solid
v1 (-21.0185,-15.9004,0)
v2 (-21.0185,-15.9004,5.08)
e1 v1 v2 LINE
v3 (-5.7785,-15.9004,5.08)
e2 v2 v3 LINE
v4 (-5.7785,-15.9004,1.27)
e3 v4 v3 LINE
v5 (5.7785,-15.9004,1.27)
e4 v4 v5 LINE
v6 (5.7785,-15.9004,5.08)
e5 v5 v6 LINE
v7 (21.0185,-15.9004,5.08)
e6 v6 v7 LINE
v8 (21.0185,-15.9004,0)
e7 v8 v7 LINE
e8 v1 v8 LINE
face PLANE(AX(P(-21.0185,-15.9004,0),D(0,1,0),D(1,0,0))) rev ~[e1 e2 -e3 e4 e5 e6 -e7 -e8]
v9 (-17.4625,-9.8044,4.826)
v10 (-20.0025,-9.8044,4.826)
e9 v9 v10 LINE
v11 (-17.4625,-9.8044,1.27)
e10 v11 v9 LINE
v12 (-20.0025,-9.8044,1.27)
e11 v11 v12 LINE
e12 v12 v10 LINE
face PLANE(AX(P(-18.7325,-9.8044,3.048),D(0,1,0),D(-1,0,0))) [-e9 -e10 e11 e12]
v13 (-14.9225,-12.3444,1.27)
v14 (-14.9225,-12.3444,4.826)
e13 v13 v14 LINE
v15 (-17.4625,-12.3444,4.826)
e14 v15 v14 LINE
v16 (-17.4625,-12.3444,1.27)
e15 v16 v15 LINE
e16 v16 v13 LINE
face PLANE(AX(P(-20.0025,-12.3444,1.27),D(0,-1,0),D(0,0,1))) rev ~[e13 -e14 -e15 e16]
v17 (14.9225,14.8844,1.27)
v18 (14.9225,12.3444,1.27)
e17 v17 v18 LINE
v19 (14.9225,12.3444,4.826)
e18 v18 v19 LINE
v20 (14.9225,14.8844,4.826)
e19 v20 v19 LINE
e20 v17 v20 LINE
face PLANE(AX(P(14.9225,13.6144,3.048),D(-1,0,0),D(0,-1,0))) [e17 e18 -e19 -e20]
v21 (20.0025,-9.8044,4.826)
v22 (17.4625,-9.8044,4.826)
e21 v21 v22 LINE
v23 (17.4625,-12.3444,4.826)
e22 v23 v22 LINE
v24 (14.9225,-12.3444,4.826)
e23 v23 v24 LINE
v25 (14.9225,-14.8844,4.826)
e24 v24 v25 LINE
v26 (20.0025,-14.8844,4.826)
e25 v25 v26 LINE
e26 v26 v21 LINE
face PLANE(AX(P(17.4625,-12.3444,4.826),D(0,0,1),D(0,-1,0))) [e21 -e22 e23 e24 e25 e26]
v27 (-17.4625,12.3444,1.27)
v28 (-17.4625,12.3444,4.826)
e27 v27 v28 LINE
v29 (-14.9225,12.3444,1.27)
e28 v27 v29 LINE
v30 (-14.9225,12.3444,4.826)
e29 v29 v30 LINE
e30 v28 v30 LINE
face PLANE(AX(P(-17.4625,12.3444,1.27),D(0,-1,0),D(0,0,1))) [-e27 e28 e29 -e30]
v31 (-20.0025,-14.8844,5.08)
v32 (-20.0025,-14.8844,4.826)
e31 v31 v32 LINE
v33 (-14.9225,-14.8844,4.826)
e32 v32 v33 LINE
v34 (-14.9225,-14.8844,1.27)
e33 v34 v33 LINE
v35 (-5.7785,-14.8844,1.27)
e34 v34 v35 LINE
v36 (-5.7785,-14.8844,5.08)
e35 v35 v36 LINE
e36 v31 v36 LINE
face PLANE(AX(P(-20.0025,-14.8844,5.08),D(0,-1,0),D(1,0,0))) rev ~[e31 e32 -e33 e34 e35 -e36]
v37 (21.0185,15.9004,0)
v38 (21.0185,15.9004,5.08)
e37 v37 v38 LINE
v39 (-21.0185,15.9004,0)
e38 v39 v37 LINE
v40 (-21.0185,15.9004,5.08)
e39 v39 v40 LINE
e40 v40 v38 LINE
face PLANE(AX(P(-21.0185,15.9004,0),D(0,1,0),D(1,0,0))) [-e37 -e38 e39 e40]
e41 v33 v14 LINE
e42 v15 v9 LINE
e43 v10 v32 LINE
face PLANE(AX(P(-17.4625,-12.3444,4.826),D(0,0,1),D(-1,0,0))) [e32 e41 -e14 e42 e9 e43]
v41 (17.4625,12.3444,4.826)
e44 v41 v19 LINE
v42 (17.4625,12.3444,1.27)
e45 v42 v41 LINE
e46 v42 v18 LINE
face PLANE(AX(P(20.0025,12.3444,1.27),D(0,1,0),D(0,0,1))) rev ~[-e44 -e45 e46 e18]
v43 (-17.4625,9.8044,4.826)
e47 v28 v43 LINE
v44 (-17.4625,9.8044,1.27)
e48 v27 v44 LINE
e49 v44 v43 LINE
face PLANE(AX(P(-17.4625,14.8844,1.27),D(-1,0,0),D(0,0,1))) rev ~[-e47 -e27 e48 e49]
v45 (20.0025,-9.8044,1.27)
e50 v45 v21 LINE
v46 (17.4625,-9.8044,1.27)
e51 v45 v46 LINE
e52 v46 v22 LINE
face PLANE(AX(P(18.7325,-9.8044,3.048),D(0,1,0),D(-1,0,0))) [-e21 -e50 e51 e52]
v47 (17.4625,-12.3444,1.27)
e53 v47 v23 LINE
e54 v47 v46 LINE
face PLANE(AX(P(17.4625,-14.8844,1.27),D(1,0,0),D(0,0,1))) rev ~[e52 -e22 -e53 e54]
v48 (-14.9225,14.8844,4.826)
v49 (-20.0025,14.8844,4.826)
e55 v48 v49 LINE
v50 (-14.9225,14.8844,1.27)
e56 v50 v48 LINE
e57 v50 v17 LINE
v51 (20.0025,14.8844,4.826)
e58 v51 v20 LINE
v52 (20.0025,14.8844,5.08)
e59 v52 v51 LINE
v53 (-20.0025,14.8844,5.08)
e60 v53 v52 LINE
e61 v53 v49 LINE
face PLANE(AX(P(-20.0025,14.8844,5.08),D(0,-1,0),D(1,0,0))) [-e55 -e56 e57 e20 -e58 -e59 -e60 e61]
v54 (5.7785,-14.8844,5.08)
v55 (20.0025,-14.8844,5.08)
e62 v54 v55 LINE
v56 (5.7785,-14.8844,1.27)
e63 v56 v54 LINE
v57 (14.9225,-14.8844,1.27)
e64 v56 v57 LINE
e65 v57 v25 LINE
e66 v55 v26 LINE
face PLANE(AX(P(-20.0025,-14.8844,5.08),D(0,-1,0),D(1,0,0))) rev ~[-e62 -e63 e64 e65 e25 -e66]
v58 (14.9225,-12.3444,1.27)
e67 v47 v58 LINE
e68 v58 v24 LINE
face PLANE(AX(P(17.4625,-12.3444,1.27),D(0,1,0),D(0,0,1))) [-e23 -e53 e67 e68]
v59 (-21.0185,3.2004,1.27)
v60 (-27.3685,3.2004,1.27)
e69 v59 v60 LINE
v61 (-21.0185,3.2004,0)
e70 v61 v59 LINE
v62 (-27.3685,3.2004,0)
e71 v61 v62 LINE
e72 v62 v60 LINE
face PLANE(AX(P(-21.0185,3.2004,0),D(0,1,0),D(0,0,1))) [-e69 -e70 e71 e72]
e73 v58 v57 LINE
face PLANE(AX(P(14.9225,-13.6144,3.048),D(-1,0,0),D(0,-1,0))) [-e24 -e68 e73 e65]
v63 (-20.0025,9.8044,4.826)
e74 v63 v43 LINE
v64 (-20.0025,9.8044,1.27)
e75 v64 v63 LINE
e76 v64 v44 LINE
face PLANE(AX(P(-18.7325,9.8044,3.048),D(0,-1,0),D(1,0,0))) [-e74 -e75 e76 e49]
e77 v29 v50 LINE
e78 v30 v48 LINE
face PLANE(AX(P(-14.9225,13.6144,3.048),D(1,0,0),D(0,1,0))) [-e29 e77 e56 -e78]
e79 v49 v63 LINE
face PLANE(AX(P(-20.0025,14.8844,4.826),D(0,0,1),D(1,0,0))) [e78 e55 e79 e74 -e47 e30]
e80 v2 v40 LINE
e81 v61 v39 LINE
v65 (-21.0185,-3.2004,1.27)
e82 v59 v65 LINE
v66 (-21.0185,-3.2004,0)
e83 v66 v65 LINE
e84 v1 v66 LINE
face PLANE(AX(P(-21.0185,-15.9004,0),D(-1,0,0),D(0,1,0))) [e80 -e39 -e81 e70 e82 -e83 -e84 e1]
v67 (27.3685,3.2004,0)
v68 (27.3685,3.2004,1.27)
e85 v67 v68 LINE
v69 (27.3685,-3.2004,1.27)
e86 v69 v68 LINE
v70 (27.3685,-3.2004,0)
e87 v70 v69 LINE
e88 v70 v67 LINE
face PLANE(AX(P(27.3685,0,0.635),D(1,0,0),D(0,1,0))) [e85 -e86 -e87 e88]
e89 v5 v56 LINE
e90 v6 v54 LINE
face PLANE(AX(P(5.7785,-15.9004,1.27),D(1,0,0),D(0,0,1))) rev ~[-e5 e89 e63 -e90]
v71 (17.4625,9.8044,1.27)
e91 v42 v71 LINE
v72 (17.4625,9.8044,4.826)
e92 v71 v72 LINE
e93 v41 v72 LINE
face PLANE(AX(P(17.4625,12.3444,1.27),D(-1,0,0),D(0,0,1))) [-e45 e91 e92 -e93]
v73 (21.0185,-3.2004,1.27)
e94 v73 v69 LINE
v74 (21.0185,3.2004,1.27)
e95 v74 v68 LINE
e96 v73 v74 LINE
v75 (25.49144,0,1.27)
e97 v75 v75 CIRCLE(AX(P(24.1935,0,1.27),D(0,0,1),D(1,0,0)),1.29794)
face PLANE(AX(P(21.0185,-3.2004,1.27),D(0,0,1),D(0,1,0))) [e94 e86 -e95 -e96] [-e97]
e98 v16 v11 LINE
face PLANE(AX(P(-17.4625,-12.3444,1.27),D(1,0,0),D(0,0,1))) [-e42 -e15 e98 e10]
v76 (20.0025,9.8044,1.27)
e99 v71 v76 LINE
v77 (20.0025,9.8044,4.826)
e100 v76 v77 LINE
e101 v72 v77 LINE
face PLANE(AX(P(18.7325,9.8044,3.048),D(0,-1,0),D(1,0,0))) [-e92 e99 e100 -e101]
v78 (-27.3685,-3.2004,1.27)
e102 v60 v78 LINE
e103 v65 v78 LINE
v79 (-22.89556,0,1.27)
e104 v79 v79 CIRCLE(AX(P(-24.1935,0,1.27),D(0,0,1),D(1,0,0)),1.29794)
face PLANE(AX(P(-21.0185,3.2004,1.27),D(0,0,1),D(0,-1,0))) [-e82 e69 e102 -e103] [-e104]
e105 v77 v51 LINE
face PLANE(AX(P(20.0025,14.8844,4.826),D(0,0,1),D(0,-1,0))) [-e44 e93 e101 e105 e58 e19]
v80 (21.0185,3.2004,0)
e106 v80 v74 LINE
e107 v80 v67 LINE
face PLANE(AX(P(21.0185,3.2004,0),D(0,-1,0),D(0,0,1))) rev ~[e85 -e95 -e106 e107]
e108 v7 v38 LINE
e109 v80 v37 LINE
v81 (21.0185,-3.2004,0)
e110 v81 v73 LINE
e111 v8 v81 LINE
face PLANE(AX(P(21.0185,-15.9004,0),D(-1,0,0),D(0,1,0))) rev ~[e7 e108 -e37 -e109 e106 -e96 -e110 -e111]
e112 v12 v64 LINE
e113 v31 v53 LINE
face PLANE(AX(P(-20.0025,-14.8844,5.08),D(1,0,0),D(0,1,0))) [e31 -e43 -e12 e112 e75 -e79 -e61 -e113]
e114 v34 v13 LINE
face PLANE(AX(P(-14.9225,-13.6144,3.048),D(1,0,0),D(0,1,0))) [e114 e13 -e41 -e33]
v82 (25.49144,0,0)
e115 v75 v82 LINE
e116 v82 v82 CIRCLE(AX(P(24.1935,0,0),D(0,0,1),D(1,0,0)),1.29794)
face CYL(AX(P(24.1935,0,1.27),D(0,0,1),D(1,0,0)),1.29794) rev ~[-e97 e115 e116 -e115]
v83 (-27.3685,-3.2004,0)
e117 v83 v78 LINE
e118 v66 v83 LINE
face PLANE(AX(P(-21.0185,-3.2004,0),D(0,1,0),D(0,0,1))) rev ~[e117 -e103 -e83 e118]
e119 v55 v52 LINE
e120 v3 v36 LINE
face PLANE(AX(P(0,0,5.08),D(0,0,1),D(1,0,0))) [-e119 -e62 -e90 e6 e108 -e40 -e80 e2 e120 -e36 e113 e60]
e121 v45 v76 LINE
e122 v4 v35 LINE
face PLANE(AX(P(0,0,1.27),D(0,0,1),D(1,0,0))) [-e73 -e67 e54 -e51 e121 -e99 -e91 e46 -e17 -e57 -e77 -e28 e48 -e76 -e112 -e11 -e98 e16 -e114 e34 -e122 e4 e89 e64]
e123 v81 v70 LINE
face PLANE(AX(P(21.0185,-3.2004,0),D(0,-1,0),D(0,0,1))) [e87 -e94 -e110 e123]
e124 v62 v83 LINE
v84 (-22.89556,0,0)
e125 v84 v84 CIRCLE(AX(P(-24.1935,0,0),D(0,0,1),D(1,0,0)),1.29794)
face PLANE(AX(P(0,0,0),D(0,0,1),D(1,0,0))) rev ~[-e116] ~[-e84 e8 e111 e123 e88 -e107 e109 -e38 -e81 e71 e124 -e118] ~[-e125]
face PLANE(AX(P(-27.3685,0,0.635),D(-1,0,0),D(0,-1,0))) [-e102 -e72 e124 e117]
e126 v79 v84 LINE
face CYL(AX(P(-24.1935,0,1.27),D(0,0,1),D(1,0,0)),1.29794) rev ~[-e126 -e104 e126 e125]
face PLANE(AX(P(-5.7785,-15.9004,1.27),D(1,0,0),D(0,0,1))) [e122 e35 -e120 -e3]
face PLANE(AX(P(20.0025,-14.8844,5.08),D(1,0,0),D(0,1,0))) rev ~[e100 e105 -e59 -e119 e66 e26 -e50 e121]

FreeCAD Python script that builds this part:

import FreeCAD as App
import Part
import Sketcher
from FreeCAD import Vector
Q = App.Units.Quantity


def add_polygon(sketch, points):
    """Adds a closed chain of lines whose ends are joined by coincident constraints."""
    first, n = sketch.GeometryCount, len(points)
    for a, b in zip(points, points[1:] + points[:1]):
        sketch.addGeometry(Part.LineSegment(App.Vector(*a, 0), App.Vector(*b, 0)), False)
    for i in range(n):
        sketch.addConstraint(Sketcher.Constraint("Coincident", first + i, 2, first + (i + 1) % n, 1))

doc = App.newDocument("Part")
body = doc.addObject("PartDesign::Body", "Body")

sketch1 = body.newObject("Sketcher::SketchObject", "Sketch")
sketch1.AttachmentSupport = (doc.getObject("XY_Plane"), [""])
sketch1.MapMode = "FlatFace"
add_polygon(sketch1, [(-21, 16), (-21, -16), (21, -16), (21, 16)])
sketch1.addConstraint(Sketcher.Constraint("Vertical", 0))
sketch1.addConstraint(Sketcher.Constraint("Horizontal", 1))
sketch1.addConstraint(Sketcher.Constraint("Vertical", 2))
sketch1.addConstraint(Sketcher.Constraint("Horizontal", 3))
sketch1.addConstraint(Sketcher.Constraint("Symmetric", 0, 2, 2, 2, -1, 1))
sketch1.addConstraint(Sketcher.Constraint("DistanceX", 1, 1, 1, 2, Q("1.655 in")))
sketch1.addConstraint(Sketcher.Constraint("DistanceY", 0, 2, 0, 1, Q("1.252 in")))
pad1 = body.newObject("PartDesign::Pad", "Pad")
pad1.Profile = sketch1
pad1.Length = Q("0.2 in")

sketch2 = body.newObject("Sketcher::SketchObject", "Sketch001")
sketch2.AttachmentSupport = (doc.getObject("XY_Plane"), [""])
sketch2.MapMode = "FlatFace"
sketch2.AttachmentOffset = App.Placement(Vector(0, 0, 0.2 * 25.4), App.Rotation())
add_polygon(sketch2, [(-20, 15), (-20, -15), (20, -15), (20, 15)])
sketch2.addConstraint(Sketcher.Constraint("Vertical", 0))
sketch2.addConstraint(Sketcher.Constraint("Horizontal", 1))
sketch2.addConstraint(Sketcher.Constraint("Vertical", 2))
sketch2.addConstraint(Sketcher.Constraint("Horizontal", 3))
sketch2.addConstraint(Sketcher.Constraint("Symmetric", 0, 2, 2, 2, -1, 1))
sketch2.addConstraint(Sketcher.Constraint("DistanceX", 1, 1, 1, 2, Q("1.575 in")))
sketch2.addConstraint(Sketcher.Constraint("DistanceY", 0, 2, 0, 1, Q("1.172 in")))
pocket1 = body.newObject("PartDesign::Pocket", "Pocket")
pocket1.Profile = sketch2
pocket1.Length = Q("0.15 in")

sketch3 = body.newObject("Sketcher::SketchObject", "Sketch002")
sketch3.AttachmentSupport = (doc.getObject("XZ_Plane"), [""])
sketch3.MapMode = "FlatFace"
sketch3.AttachmentOffset = App.Placement(Vector(0, 0, 0.586 * 25.4), App.Rotation())
add_polygon(sketch3, [(20, 4.8), (20, 1.3), (17.5, 1.3), (17.5, 4.8)])
sketch3.addConstraint(Sketcher.Constraint("Vertical", 0))
sketch3.addConstraint(Sketcher.Constraint("Horizontal", 1))
sketch3.addConstraint(Sketcher.Constraint("Vertical", 2))
sketch3.addConstraint(Sketcher.Constraint("Horizontal", 3))
sketch3.addConstraint(Sketcher.Constraint("DistanceX", 1, 2, 1, 1, Q("0.1 in")))
sketch3.addConstraint(Sketcher.Constraint("DistanceY", 0, 2, 0, 1, Q("0.14 in")))
sketch3.addConstraint(Sketcher.Constraint("DistanceY", -1, 1, 0, 2, Q("0.05 in")))
sketch3.addConstraint(Sketcher.Constraint("DistanceX", -1, 1, 1, 2, Q("0.6875 in")))
pad2 = body.newObject("PartDesign::Pad", "Pad001")
pad2.Profile = sketch3
pad2.Length = Q("0.2 in")
pad2.Reversed = True

sketch4 = body.newObject("Sketcher::SketchObject", "Sketch003")
sketch4.AttachmentSupport = (doc.getObject("YZ_Plane"), [""])
sketch4.MapMode = "FlatFace"
sketch4.AttachmentOffset = App.Placement(Vector(0, 0, -0.6875 * 25.4), App.Rotation())
add_polygon(sketch4, [(12.3, 4.8), (12.3, 1.3), (14.9, 1.3), (14.9, 4.8)])
sketch4.addConstraint(Sketcher.Constraint("Vertical", 0))
sketch4.addConstraint(Sketcher.Constraint("Horizontal", 1))
sketch4.addConstraint(Sketcher.Constraint("Vertical", 2))
sketch4.addConstraint(Sketcher.Constraint("Horizontal", 3))
sketch4.addConstraint(Sketcher.Constraint("DistanceX", 1, 1, 1, 2, Q("0.1 in")))
sketch4.addConstraint(Sketcher.Constraint("DistanceY", 0, 2, 0, 1, Q("0.14 in")))
sketch4.addConstraint(Sketcher.Constraint("DistanceY", -1, 1, 0, 2, Q("0.05 in")))
sketch4.addConstraint(Sketcher.Constraint("DistanceX", -1, 1, 0, 2, Q("0.486 in")))
pad3 = body.newObject("PartDesign::Pad", "Pad002")
pad3.Profile = sketch4
pad3.Length = Q("0.1 in")

sketch5 = body.newObject("Sketcher::SketchObject", "Sketch004")
sketch5.AttachmentSupport = (doc.getObject("YZ_Plane"), [""])
sketch5.MapMode = "FlatFace"
sketch5.AttachmentOffset = App.Placement(Vector(0, 0, -0.7875 * 25.4), App.Rotation())
add_polygon(sketch5, [(-14.9, 4.8), (-14.9, 1.3), (-12.3, 1.3), (-12.3, 4.8)])
sketch5.addConstraint(Sketcher.Constraint("Vertical", 0))
sketch5.addConstraint(Sketcher.Constraint("Horizontal", 1))
sketch5.addConstraint(Sketcher.Constraint("Vertical", 2))
sketch5.addConstraint(Sketcher.Constraint("Horizontal", 3))
sketch5.addConstraint(Sketcher.Constraint("DistanceX", 1, 1, 1, 2, Q("0.1 in")))
sketch5.addConstraint(Sketcher.Constraint("DistanceY", 0, 2, 0, 1, Q("0.14 in")))
sketch5.addConstraint(Sketcher.Constraint("DistanceY", -1, 1, 0, 2, Q("0.05 in")))
sketch5.addConstraint(Sketcher.Constraint("DistanceX", 0, 2, -1, 1, Q("0.586 in")))
pad4 = body.newObject("PartDesign::Pad", "Pad003")
pad4.Profile = sketch5
pad4.Length = Q("0.2 in")

sketch6 = body.newObject("Sketcher::SketchObject", "Sketch005")
sketch6.AttachmentSupport = (doc.getObject("XZ_Plane"), [""])
sketch6.MapMode = "FlatFace"
sketch6.AttachmentOffset = App.Placement(Vector(0, 0, -0.486 * 25.4), App.Rotation())
add_polygon(sketch6, [(17.5, 4.8), (17.5, 1.3), (20, 1.3), (20, 4.8)])
sketch6.addConstraint(Sketcher.Constraint("Vertical", 0))
sketch6.addConstraint(Sketcher.Constraint("Horizontal", 1))
sketch6.addConstraint(Sketcher.Constraint("Vertical", 2))
sketch6.addConstraint(Sketcher.Constraint("Horizontal", 3))
sketch6.addConstraint(Sketcher.Constraint("DistanceX", 1, 1, 1, 2, Q("0.1 in")))
sketch6.addConstraint(Sketcher.Constraint("DistanceY", 0, 2, 0, 1, Q("0.14 in")))
sketch6.addConstraint(Sketcher.Constraint("DistanceY", -1, 1, 0, 2, Q("0.05 in")))
sketch6.addConstraint(Sketcher.Constraint("DistanceX", -1, 1, 0, 2, Q("0.6875 in")))
pad5 = body.newObject("PartDesign::Pad", "Pad004")
pad5.Profile = sketch6
pad5.Length = Q("0.1 in")

sketch7 = body.newObject("Sketcher::SketchObject", "Sketch006")
sketch7.AttachmentSupport = (doc.getObject("XZ_Plane"), [""])
sketch7.MapMode = "FlatFace"
sketch7.AttachmentOffset = App.Placement(Vector(0, 0, -0.586 * 25.4), App.Rotation())
add_polygon(sketch7, [(-20, 4.8), (-20, 1.3), (-17.5, 1.3), (-17.5, 4.8)])
sketch7.addConstraint(Sketcher.Constraint("Vertical", 0))
sketch7.addConstraint(Sketcher.Constraint("Horizontal", 1))
sketch7.addConstraint(Sketcher.Constraint("Vertical", 2))
sketch7.addConstraint(Sketcher.Constraint("Horizontal", 3))
sketch7.addConstraint(Sketcher.Constraint("DistanceX", 1, 1, 1, 2, Q("0.1 in")))
sketch7.addConstraint(Sketcher.Constraint("DistanceY", 0, 2, 0, 1, Q("0.14 in")))
sketch7.addConstraint(Sketcher.Constraint("DistanceY", -1, 1, 0, 2, Q("0.05 in")))
sketch7.addConstraint(Sketcher.Constraint("DistanceX", 1, 2, -1, 1, Q("0.6875 in")))
pad6 = body.newObject("PartDesign::Pad", "Pad005")
pad6.Profile = sketch7
pad6.Length = Q("0.2 in")

sketch8 = body.newObject("Sketcher::SketchObject", "Sketch007")
sketch8.AttachmentSupport = (doc.getObject("YZ_Plane"), [""])
sketch8.MapMode = "FlatFace"
sketch8.AttachmentOffset = App.Placement(Vector(0, 0, 0.6875 * 25.4), App.Rotation())
add_polygon(sketch8, [(-12.3, 4.8), (-12.3, 1.3), (-14.9, 1.3), (-14.9, 4.8)])
sketch8.addConstraint(Sketcher.Constraint("Vertical", 0))
sketch8.addConstraint(Sketcher.Constraint("Horizontal", 1))
sketch8.addConstraint(Sketcher.Constraint("Vertical", 2))
sketch8.addConstraint(Sketcher.Constraint("Horizontal", 3))
sketch8.addConstraint(Sketcher.Constraint("DistanceX", 1, 2, 1, 1, Q("0.1 in")))
sketch8.addConstraint(Sketcher.Constraint("DistanceY", 0, 2, 0, 1, Q("0.14 in")))
sketch8.addConstraint(Sketcher.Constraint("DistanceY", -1, 1, 0, 2, Q("0.05 in")))
sketch8.addConstraint(Sketcher.Constraint("DistanceX", 0, 2, -1, 1, Q("0.486 in")))
pad7 = body.newObject("PartDesign::Pad", "Pad006")
pad7.Profile = sketch8
pad7.Length = Q("0.1 in")
pad7.Reversed = True

sketch9 = body.newObject("Sketcher::SketchObject", "Sketch008")
sketch9.AttachmentSupport = (doc.getObject("YZ_Plane"), [""])
sketch9.MapMode = "FlatFace"
sketch9.AttachmentOffset = App.Placement(Vector(0, 0, 0.7875 * 25.4), App.Rotation())
add_polygon(sketch9, [(14.9, 4.8), (14.9, 1.3), (12.3, 1.3), (12.3, 4.8)])
sketch9.addConstraint(Sketcher.Constraint("Vertical", 0))
sketch9.addConstraint(Sketcher.Constraint("Horizontal", 1))
sketch9.addConstraint(Sketcher.Constraint("Vertical", 2))
sketch9.addConstraint(Sketcher.Constraint("Horizontal", 3))
sketch9.addConstraint(Sketcher.Constraint("DistanceX", 1, 2, 1, 1, Q("0.1 in")))
sketch9.addConstraint(Sketcher.Constraint("DistanceY", 0, 2, 0, 1, Q("0.14 in")))
sketch9.addConstraint(Sketcher.Constraint("DistanceY", -1, 1, 0, 2, Q("0.05 in")))
sketch9.addConstraint(Sketcher.Constraint("DistanceX", -1, 1, 0, 2, Q("0.586 in")))
pad8 = body.newObject("PartDesign::Pad", "Pad007")
pad8.Profile = sketch9
pad8.Length = Q("0.2 in")
pad8.Reversed = True

sketch10 = body.newObject("Sketcher::SketchObject", "Sketch009")
sketch10.AttachmentSupport = (doc.getObject("XZ_Plane"), [""])
sketch10.MapMode = "FlatFace"
sketch10.AttachmentOffset = App.Placement(Vector(0, 0, 0.486 * 25.4), App.Rotation())
add_polygon(sketch10, [(-17.5, 4.8), (-17.5, 1.3), (-20, 1.3), (-20, 4.8)])
sketch10.addConstraint(Sketcher.Constraint("Vertical", 0))
sketch10.addConstraint(Sketcher.Constraint("Horizontal", 1))
sketch10.addConstraint(Sketcher.Constraint("Vertical", 2))
sketch10.addConstraint(Sketcher.Constraint("Horizontal", 3))
sketch10.addConstraint(Sketcher.Constraint("DistanceX", 1, 2, 1, 1, Q("0.1 in")))
sketch10.addConstraint(Sketcher.Constraint("DistanceY", 0, 2, 0, 1, Q("0.14 in")))
sketch10.addConstraint(Sketcher.Constraint("DistanceY", -1, 1, 0, 2, Q("0.05 in")))
sketch10.addConstraint(Sketcher.Constraint("DistanceX", 0, 2, -1, 1, Q("0.6875 in")))
pad9 = body.newObject("PartDesign::Pad", "Pad008")
pad9.Profile = sketch10
pad9.Length = Q("0.1 in")
pad9.Reversed = True

sketch11 = body.newObject("Sketcher::SketchObject", "Sketch010")
sketch11.AttachmentSupport = (doc.getObject("XZ_Plane"), [""])
sketch11.MapMode = "FlatFace"
sketch11.AttachmentOffset = App.Placement(Vector(0, 0, 0.626 * 25.4), App.Rotation())
add_polygon(sketch11, [(-5.8, 5.1), (-5.8, 1.3), (5.8, 1.3), (5.8, 5.1)])
sketch11.addConstraint(Sketcher.Constraint("Vertical", 0))
sketch11.addConstraint(Sketcher.Constraint("Horizontal", 1))
sketch11.addConstraint(Sketcher.Constraint("Vertical", 2))
sketch11.addConstraint(Sketcher.Constraint("Horizontal", 3))
sketch11.addConstraint(Sketcher.Constraint("DistanceY", 0, 2, 0, 1, Q("0.15 in")))
sketch11.addConstraint(Sketcher.Constraint("DistanceY", -1, 1, 2, 2, Q("0.2 in")))
sketch11.addConstraint(Sketcher.Constraint("DistanceX", 1, 1, 1, 2, Q("0.455 in")))
sketch11.addConstraint(Sketcher.Constraint("DistanceX", 0, 2, -1, 1, Q("0.2275 in")))
pocket2 = body.newObject("PartDesign::Pocket", "Pocket001")
pocket2.Profile = sketch11
pocket2.Length = Q("0.04 in")

sketch12 = body.newObject("Sketcher::SketchObject", "Sketch011")
sketch12.AttachmentSupport = (doc.getObject("YZ_Plane"), [""])
sketch12.MapMode = "FlatFace"
sketch12.AttachmentOffset = App.Placement(Vector(0, 0, 0.8275 * 25.4), App.Rotation())
add_polygon(sketch12, [(-3.2, 1.3), (-3.2, 0), (3.2, 0), (3.2, 1.3)])
sketch12.addConstraint(Sketcher.Constraint("Vertical", 0))
sketch12.addConstraint(Sketcher.Constraint("Horizontal", 1))
sketch12.addConstraint(Sketcher.Constraint("Vertical", 2))
sketch12.addConstraint(Sketcher.Constraint("Horizontal", 3))
sketch12.addConstraint(Sketcher.Constraint("Symmetric", 0, 2, 1, 2, -1, 1))
sketch12.addConstraint(Sketcher.Constraint("DistanceY", 0, 2, 0, 1, Q("0.05 in")))
sketch12.addConstraint(Sketcher.Constraint("DistanceX", 1, 1, 1, 2, Q("0.252 in")))
pad10 = body.newObject("PartDesign::Pad", "Pad009")
pad10.Profile = sketch12
pad10.Length = Q("0.25 in")

sketch13 = body.newObject("Sketcher::SketchObject", "Sketch012")
sketch13.AttachmentSupport = (doc.getObject("YZ_Plane"), [""])
sketch13.MapMode = "FlatFace"
sketch13.AttachmentOffset = App.Placement(Vector(0, 0, -0.8275 * 25.4), App.Rotation())
add_polygon(sketch13, [(3.2, 1.3), (3.2, 0), (-3.2, 0), (-3.2, 1.3)])
sketch13.addConstraint(Sketcher.Constraint("Vertical", 0))
sketch13.addConstraint(Sketcher.Constraint("Horizontal", 1))
sketch13.addConstraint(Sketcher.Constraint("Vertical", 2))
sketch13.addConstraint(Sketcher.Constraint("Horizontal", 3))
sketch13.addConstraint(Sketcher.Constraint("Symmetric", 0, 2, 1, 2, -1, 1))
sketch13.addConstraint(Sketcher.Constraint("DistanceY", 0, 2, 0, 1, Q("0.05 in")))
sketch13.addConstraint(Sketcher.Constraint("DistanceX", 1, 2, 1, 1, Q("0.252 in")))
pad11 = body.newObject("PartDesign::Pad", "Pad010")
pad11.Profile = sketch13
pad11.Length = Q("0.25 in")
pad11.Reversed = True

sketch14 = body.newObject("Sketcher::SketchObject", "Sketch013")
sketch14.AttachmentSupport = (doc.getObject("XY_Plane"), [""])
sketch14.MapMode = "FlatFace"
sketch14.AttachmentOffset = App.Placement(Vector(0, 0, 0.05 * 25.4), App.Rotation())
sketch14.addGeometry(Part.Circle(Vector(24.2, 0, 0), Vector(0, 0, 1), 1.3), False)
sketch14.addConstraint(Sketcher.Constraint("PointOnObject", 0, 3, -1))
sketch14.addConstraint(Sketcher.Constraint("Diameter", 0, Q("0.1022 in")))
sketch14.addConstraint(Sketcher.Constraint("DistanceX", -1, 1, 0, 3, Q("0.9525 in")))
pocket3 = body.newObject("PartDesign::Pocket", "Pocket002")
pocket3.Profile = sketch14
pocket3.Type = "ThroughAll"

sketch15 = body.newObject("Sketcher::SketchObject", "Sketch014")
sketch15.AttachmentSupport = (doc.getObject("XY_Plane"), [""])
sketch15.MapMode = "FlatFace"
sketch15.AttachmentOffset = App.Placement(Vector(0, 0, 0.05 * 25.4), App.Rotation())
sketch15.addGeometry(Part.Circle(Vector(-24.2, 0, 0), Vector(0, 0, 1), 1.3), False)
sketch15.addConstraint(Sketcher.Constraint("PointOnObject", 0, 3, -1))
sketch15.addConstraint(Sketcher.Constraint("Diameter", 0, Q("0.1022 in")))
sketch15.addConstraint(Sketcher.Constraint("DistanceX", 0, 3, -1, 1, Q("0.9525 in")))
pocket4 = body.newObject("PartDesign::Pocket", "Pocket003")
pocket4.Profile = sketch15
pocket4.Type = "ThroughAll"

doc.recompute()
